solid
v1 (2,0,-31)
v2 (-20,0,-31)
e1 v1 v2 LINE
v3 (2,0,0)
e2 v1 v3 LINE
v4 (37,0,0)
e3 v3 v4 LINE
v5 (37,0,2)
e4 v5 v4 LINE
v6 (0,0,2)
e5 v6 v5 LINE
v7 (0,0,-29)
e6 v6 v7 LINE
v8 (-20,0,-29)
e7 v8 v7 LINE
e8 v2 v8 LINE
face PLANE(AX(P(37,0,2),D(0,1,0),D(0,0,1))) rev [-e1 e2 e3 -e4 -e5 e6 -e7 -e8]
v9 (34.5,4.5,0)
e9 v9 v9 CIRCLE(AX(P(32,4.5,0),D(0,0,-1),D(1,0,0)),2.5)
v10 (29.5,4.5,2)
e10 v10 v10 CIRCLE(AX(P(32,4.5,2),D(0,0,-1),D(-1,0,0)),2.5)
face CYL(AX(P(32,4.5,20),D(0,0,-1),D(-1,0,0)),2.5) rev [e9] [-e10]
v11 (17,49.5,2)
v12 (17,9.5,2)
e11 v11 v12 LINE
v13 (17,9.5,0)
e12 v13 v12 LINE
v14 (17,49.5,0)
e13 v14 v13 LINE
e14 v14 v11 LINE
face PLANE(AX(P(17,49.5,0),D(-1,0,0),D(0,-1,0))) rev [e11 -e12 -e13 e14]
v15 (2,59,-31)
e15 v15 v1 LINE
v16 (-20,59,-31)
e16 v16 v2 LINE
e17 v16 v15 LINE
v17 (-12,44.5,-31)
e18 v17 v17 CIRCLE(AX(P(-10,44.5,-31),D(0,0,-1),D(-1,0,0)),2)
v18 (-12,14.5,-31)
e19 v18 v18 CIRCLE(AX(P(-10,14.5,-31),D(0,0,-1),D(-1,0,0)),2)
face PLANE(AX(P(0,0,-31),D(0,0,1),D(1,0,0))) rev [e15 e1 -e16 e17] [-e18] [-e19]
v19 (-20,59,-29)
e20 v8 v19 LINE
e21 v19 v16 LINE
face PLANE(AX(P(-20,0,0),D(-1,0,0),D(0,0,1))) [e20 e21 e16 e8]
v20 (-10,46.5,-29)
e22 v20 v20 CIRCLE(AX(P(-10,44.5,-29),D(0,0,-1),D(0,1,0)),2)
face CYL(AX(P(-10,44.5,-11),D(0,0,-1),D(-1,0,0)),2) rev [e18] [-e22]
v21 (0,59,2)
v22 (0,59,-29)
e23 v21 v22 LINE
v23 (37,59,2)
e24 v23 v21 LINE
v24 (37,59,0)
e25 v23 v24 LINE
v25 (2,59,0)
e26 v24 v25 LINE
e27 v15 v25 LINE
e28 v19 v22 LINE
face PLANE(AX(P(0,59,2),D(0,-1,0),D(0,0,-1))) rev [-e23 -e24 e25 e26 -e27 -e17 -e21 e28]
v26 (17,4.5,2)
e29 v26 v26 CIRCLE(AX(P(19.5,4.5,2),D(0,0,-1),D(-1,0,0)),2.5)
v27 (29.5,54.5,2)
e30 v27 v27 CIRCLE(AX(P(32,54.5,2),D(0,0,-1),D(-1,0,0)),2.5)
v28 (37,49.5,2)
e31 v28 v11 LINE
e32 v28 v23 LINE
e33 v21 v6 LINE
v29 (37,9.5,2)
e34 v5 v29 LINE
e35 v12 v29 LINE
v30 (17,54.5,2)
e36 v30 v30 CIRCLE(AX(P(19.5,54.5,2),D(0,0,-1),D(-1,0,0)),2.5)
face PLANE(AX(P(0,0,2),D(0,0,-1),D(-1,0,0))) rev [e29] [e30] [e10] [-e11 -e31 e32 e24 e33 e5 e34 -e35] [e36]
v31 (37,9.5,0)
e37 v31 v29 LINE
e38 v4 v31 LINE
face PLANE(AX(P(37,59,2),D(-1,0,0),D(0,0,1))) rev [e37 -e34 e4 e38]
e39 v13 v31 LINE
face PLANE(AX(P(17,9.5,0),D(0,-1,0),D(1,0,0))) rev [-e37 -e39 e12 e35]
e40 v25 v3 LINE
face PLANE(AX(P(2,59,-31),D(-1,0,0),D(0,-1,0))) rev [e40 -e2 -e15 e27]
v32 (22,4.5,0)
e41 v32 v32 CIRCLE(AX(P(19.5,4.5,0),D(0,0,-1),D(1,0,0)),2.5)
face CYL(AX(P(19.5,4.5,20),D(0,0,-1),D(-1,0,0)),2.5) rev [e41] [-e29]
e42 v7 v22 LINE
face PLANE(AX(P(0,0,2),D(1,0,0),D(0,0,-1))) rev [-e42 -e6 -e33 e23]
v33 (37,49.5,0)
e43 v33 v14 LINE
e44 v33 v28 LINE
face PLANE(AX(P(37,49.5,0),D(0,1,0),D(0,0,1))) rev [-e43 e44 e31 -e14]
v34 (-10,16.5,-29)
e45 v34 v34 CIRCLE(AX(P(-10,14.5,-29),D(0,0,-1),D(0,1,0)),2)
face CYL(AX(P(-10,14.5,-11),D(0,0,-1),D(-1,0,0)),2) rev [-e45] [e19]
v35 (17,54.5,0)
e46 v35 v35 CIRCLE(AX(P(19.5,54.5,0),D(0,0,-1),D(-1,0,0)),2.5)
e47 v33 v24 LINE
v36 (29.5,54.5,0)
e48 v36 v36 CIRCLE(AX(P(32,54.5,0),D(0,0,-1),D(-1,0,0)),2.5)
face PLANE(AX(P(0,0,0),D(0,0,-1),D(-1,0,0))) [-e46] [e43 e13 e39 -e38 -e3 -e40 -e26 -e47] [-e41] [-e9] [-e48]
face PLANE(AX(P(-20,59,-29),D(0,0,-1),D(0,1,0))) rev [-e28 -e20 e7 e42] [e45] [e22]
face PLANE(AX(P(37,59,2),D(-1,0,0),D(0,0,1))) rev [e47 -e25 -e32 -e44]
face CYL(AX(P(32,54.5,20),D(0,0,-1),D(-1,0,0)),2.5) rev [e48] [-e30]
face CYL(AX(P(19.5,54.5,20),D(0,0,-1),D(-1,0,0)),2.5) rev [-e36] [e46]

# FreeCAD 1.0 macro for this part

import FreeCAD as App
import Part
import Sketcher
from FreeCAD import Vector
Q = App.Units.Quantity


def add_polygon(sketch, points):
    """Adds a closed chain of lines whose ends are joined by coincident constraints."""
    first, n = sketch.GeometryCount, len(points)
    for a, b in zip(points, points[1:] + points[:1]):
        sketch.addGeometry(Part.LineSegment(App.Vector(*a, 0), App.Vector(*b, 0)), False)
    for i in range(n):
        sketch.addConstraint(Sketcher.Constraint("Coincident", first + i, 2, first + (i + 1) % n, 1))

doc = App.newDocument("Part")
params = doc.addObject("Spreadsheet::Sheet", "Params")
for row, (alias, value) in enumerate([
    ("sketch1_width", "37 mm"),
    ("sketch1_height", "59 mm"),
    ("pad1_length", "2 mm"),
    ("sketch2_width", "20 mm"),
    ("sketch2_height", "40 mm"),
    ("pocket1_length", "2 mm"),
    ("sketch3_width", "2 mm"),
    ("sketch3_height", "59 mm"),
    ("pad2_length", "31 mm"),
    ("sketch4_width", "59 mm"),
    ("sketch4_height", "2 mm"),
    ("pad3_length", "20 mm"),
    ("sketch5_diameter", "4 mm"),
    ("pocket2_length", "20 mm"),
    ("sketch6_diameter", "5 mm"),
    ("pocket3_length", "20 mm"),
], start=1):
    params.set(f"A{row}", alias)
    params.set(f"B{row}", "=" + value)
    params.setAlias(f"B{row}", alias)

body = doc.addObject("PartDesign::Body", "Body")

# Sketch on XY plane
sketch1 = body.newObject("Sketcher::SketchObject", "Sketch")
sketch1.AttachmentSupport = (doc.getObject("XY_Plane"), [""])
sketch1.MapMode = "FlatFace"
add_polygon(sketch1, [(0, 59), (0, 0), (37, 0), (37, 59)])  # lines 0-3
sketch1.addConstraint([
    Sketcher.Constraint("Vertical", 0),
    Sketcher.Constraint("Horizontal", 1),
    Sketcher.Constraint("Vertical", 2),
    Sketcher.Constraint("Horizontal", 3),
    Sketcher.Constraint("Coincident", 0, 2, -1, 1),
    Sketcher.Constraint("DistanceX", 1, 1, 1, 2, Q("37 mm")),
    Sketcher.Constraint("DistanceY", 0, 2, 0, 1, Q("59 mm")),
])
sketch1.setExpression("Constraints[9]", "Params.sketch1_width")
sketch1.setExpression("Constraints[10]", "Params.sketch1_height")
pad1 = body.newObject("PartDesign::Pad", "Pad")
pad1.Profile = sketch1
pad1.setExpression("Length", "Params.pad1_length")

# Sketch on XY plane
sketch2 = body.newObject("Sketcher::SketchObject", "Sketch001")
sketch2.AttachmentSupport = (doc.getObject("XY_Plane"), [""])
sketch2.MapMode = "FlatFace"
sketch2.AttachmentOffset = App.Placement(Vector(0, 0, 2), App.Rotation())
add_polygon(sketch2, [(17, 50), (17, 10), (37, 10), (37, 50)])  # lines 0-3
sketch2.addConstraint([
    Sketcher.Constraint("Vertical", 0),
    Sketcher.Constraint("Horizontal", 1),
    Sketcher.Constraint("Vertical", 2),
    Sketcher.Constraint("Horizontal", 3),
    Sketcher.Constraint("DistanceX", 1, 1, 1, 2, Q("20 mm")),
    Sketcher.Constraint("DistanceY", 0, 2, 0, 1, Q("40 mm")),
    Sketcher.Constraint("DistanceX", -1, 1, 0, 2, Q("17 mm")),
    Sketcher.Constraint("DistanceY", -1, 1, 0, 2, Q("9.5 mm")),
])
sketch2.setExpression("Constraints[8]", "Params.sketch2_width")
sketch2.setExpression("Constraints[9]", "Params.sketch2_height")
pocket1 = body.newObject("PartDesign::Pocket", "Pocket")
pocket1.Profile = sketch2
pocket1.setExpression("Length", "Params.pocket1_length")

# Sketch on XY plane
sketch3 = body.newObject("Sketcher::SketchObject", "Sketch002")
sketch3.AttachmentSupport = (doc.getObject("XY_Plane"), [""])
sketch3.MapMode = "FlatFace"
add_polygon(sketch3, [(2, 59), (2, 0), (0, 0), (0, 59)])  # lines 0-3
sketch3.addConstraint([
    Sketcher.Constraint("Vertical", 0),
    Sketcher.Constraint("Horizontal", 1),
    Sketcher.Constraint("Vertical", 2),
    Sketcher.Constraint("Horizontal", 3),
    Sketcher.Constraint("Coincident", 1, 2, -1, 1),
    Sketcher.Constraint("DistanceX", 1, 2, 1, 1, Q("2 mm")),
    Sketcher.Constraint("DistanceY", 0, 2, 0, 1, Q("59 mm")),
])
sketch3.setExpression("Constraints[9]", "Params.sketch3_width")
sketch3.setExpression("Constraints[10]", "Params.sketch3_height")
pad2 = body.newObject("PartDesign::Pad", "Pad001")
pad2.Profile = sketch3
pad2.setExpression("Length", "Params.pad2_length")
pad2.Reversed = True

# Sketch on YZ plane
sketch4 = body.newObject("Sketcher::SketchObject", "Sketch003")
sketch4.AttachmentSupport = (doc.getObject("YZ_Plane"), [""])
sketch4.MapMode = "FlatFace"
add_polygon(sketch4, [(59, -31), (0, -31), (0, -29), (59, -29)])  # lines 0-3
sketch4.addConstraint([
    Sketcher.Constraint("Horizontal", 0),
    Sketcher.Constraint("Vertical", 1),
    Sketcher.Constraint("Horizontal", 2),
    Sketcher.Constraint("Vertical", 3),
    Sketcher.Constraint("PointOnObject", 0, 2, -2),
    Sketcher.Constraint("DistanceX", 0, 2, 0, 1, Q("59 mm")),
    Sketcher.Constraint("DistanceY", 1, 1, 1, 2, Q("2 mm")),
    Sketcher.Constraint("DistanceY", 0, 2, -1, 1, Q("31 mm")),
])
sketch4.setExpression("Constraints[9]", "Params.sketch4_width")
sketch4.setExpression("Constraints[10]", "Params.sketch4_height")
pad3 = body.newObject("PartDesign::Pad", "Pad002")
pad3.Profile = sketch4
pad3.setExpression("Length", "Params.pad3_length")
pad3.Reversed = True

# Sketch on XY plane
sketch5 = body.newObject("Sketcher::SketchObject", "Sketch004")
sketch5.AttachmentSupport = (doc.getObject("XY_Plane"), [""])
sketch5.MapMode = "FlatFace"
sketch5.AttachmentOffset = App.Placement(Vector(0, 0, -31), App.Rotation())
sketch5.addGeometry([
    Part.Circle(Vector(-10, 44.5, 0), Vector(0, 0, 1), 2),
    Part.Circle(Vector(-10, 14.5, 0), Vector(0, 0, 1), 2),
], False)
sketch5.addConstraint([
    Sketcher.Constraint("Equal", 0, 1),
    Sketcher.Constraint("Vertical", 0, 3, 1, 3),
    Sketcher.Constraint("Diameter", 0, Q("4 mm")),
    Sketcher.Constraint("DistanceX", 0, 3, -1, 1, Q("10 mm")),
    Sketcher.Constraint("DistanceY", 1, 3, 0, 3, Q("30 mm")),
    Sketcher.Constraint("DistanceY", -1, 1, 0, 3, Q("44.5 mm")),
])
sketch5.setExpression("Constraints[2]", "Params.sketch5_diameter")
pocket2 = body.newObject("PartDesign::Pocket", "Pocket001")
pocket2.Profile = sketch5
pocket2.setExpression("Length", "Params.pocket2_length")
pocket2.Reversed = True

# Sketch on XY plane
sketch6 = body.newObject("Sketcher::SketchObject", "Sketch005")
sketch6.AttachmentSupport = (doc.getObject("XY_Plane"), [""])
sketch6.MapMode = "FlatFace"
sketch6.addGeometry([
    Part.Circle(Vector(32, 54.5, 0), Vector(0, 0, 1), 2.5),
    Part.Circle(Vector(19.5, 54.5, 0), Vector(0, 0, 1), 2.5),
    Part.Circle(Vector(19.5, 4.5, 0), Vector(0, 0, 1), 2.5),
    Part.Circle(Vector(32, 4.5, 0), Vector(0, 0, 1), 2.5),
], False)
sketch6.addConstraint([
    Sketcher.Constraint("Equal", 0, 1),
    Sketcher.Constraint("Equal", 1, 2),
    Sketcher.Constraint("Equal", 2, 3),
    Sketcher.Constraint("Horizontal", 0, 3, 1, 3),
    Sketcher.Constraint("Horizontal", 2, 3, 3, 3),
    Sketcher.Constraint("Vertical", 1, 3, 2, 3),
    Sketcher.Constraint("Vertical", 0, 3, 3, 3),
    Sketcher.Constraint("Diameter", 0, Q("5 mm")),
    Sketcher.Constraint("DistanceX", -1, 1, 0, 3, Q("32 mm")),
    Sketcher.Constraint("DistanceY", 2, 3, 1, 3, Q("50 mm")),
    Sketcher.Constraint("DistanceY", -1, 1, 0, 3, Q("54.5 mm")),
    Sketcher.Constraint("DistanceX", -1, 1, 1, 3, Q("19.5 mm")),
])
sketch6.setExpression("Constraints[7]", "Params.sketch6_diameter")
pocket3 = body.newObject("PartDesign::Pocket", "Pocket002")
pocket3.Profile = sketch6
pocket3.setExpression("Length", "Params.pocket3_length")
pocket3.Reversed = True

doc.recompute()
